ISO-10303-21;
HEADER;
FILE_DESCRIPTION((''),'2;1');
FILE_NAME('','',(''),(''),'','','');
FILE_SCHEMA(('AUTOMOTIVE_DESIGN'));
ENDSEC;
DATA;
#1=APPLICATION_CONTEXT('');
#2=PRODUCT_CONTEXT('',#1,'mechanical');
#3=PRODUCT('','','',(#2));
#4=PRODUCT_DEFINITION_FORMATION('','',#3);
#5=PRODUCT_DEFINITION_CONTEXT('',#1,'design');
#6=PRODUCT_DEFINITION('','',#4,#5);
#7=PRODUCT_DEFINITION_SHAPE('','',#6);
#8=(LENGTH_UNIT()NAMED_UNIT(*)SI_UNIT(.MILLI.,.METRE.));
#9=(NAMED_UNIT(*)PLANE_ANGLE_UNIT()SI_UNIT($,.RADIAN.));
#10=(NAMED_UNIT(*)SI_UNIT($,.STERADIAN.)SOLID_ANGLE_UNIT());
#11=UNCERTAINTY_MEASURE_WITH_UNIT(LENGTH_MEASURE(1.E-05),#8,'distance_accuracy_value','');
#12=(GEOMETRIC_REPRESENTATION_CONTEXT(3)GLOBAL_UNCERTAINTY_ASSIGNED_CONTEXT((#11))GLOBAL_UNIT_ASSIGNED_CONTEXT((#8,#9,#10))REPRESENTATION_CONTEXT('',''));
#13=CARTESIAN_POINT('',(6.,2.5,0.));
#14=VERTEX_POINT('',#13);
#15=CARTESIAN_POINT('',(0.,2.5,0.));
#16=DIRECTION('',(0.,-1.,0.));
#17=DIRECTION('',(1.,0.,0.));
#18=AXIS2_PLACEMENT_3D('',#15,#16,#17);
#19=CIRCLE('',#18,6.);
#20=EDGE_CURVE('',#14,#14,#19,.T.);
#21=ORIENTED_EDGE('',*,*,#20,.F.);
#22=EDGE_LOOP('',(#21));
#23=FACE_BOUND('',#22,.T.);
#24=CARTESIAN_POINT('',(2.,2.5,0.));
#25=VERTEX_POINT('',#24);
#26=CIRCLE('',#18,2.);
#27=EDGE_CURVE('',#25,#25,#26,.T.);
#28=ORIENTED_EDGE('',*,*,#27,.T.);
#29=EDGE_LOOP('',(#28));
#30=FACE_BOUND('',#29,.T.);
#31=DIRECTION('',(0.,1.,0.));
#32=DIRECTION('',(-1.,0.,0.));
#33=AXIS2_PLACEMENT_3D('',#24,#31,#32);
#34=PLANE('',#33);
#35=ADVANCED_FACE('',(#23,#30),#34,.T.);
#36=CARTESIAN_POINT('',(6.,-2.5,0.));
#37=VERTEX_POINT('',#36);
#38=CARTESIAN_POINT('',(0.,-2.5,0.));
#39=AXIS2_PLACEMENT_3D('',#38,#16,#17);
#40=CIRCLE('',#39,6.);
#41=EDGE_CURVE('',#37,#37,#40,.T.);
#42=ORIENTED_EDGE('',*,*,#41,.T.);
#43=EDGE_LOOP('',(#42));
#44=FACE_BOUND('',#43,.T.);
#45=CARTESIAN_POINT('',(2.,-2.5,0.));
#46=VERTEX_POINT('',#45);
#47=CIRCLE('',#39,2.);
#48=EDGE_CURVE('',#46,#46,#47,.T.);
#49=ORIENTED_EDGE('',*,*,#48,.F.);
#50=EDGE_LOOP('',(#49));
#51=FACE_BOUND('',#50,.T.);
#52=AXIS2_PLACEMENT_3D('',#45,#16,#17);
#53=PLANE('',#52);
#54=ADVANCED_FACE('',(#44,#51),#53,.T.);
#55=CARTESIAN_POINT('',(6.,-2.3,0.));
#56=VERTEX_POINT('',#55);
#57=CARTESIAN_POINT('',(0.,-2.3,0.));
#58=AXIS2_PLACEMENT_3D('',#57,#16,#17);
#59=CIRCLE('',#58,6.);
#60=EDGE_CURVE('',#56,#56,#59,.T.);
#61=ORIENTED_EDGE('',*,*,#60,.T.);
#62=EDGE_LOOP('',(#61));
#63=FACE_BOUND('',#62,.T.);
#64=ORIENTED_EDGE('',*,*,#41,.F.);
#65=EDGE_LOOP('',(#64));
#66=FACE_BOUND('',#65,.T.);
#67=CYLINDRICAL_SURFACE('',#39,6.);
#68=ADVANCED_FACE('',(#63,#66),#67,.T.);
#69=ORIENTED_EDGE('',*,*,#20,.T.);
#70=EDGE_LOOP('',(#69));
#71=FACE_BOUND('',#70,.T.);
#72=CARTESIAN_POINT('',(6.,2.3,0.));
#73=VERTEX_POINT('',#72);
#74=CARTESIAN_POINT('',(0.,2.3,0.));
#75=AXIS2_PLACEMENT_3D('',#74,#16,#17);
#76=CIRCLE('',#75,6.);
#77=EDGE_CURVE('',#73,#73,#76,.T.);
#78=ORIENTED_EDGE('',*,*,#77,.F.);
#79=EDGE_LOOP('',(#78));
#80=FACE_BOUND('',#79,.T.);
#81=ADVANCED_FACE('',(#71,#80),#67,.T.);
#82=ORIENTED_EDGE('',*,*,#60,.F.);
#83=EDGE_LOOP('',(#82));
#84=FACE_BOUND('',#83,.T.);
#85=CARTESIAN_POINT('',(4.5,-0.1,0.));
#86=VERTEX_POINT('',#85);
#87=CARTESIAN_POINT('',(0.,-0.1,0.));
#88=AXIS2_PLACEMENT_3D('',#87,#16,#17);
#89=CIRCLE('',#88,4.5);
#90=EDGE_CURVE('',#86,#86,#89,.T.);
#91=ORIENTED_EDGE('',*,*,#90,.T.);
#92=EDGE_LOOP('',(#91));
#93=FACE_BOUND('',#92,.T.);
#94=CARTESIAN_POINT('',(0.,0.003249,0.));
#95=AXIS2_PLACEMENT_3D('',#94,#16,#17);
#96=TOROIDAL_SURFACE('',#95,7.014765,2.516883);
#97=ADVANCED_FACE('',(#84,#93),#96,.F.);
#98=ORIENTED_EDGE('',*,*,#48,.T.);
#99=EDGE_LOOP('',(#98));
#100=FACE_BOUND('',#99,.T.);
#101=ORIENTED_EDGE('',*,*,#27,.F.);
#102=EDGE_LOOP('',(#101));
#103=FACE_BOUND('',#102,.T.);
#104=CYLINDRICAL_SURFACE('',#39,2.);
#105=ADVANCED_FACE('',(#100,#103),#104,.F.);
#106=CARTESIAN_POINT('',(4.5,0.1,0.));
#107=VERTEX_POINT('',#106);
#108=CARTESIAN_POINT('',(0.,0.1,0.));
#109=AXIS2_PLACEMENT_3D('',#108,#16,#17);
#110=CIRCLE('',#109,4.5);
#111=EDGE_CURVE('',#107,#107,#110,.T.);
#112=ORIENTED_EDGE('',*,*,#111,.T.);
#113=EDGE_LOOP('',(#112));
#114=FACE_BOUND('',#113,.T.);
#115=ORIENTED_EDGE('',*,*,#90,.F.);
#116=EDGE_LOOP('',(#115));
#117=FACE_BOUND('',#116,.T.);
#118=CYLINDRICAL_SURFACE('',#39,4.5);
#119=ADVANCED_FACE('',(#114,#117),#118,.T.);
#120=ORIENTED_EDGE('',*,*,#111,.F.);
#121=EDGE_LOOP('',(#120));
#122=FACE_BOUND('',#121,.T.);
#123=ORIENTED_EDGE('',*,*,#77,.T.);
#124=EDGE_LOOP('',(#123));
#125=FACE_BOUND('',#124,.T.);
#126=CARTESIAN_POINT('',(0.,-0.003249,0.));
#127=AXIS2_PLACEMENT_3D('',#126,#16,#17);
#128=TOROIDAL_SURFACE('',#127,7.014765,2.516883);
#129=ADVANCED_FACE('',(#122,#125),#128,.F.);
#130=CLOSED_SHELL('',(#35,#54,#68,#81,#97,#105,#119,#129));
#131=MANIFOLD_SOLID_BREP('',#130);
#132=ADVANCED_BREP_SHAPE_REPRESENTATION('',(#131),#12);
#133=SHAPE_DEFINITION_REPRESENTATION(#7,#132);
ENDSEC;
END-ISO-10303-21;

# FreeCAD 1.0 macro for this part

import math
import FreeCAD as App
import Part
import Sketcher
Q = App.Units.Quantity

doc = App.newDocument("Part")
body = doc.addObject("PartDesign::Body", "Body")

# Sketch on XY plane
sketch1 = body.newObject("Sketcher::SketchObject", "Sketch")
sketch1.AttachmentSupport = (doc.getObject("XY_Plane"), [""])
sketch1.MapMode = "FlatFace"
sketch1.addGeometry(Part.LineSegment(App.Vector(2, 2.5, 0), App.Vector(2, -2.5, 0)), False)
sketch1.addGeometry(Part.LineSegment(App.Vector(2, -2.5, 0), App.Vector(6, -2.5, 0)), False)
sketch1.addGeometry(Part.LineSegment(App.Vector(6, -2.5, 0), App.Vector(6, -2.3, 0)), False)
sketch1.addGeometry(Part.ArcOfCircle(Part.Circle(App.Vector(7.014765, 0.003249, 0), App.Vector(0, 0, 1), 2.516883), math.radians(-177.64893), math.radians(-113.777316)), False)
sketch1.addGeometry(Part.LineSegment(App.Vector(4.5, -0.1, 0), App.Vector(4.5, 0.1, 0)), False)
sketch1.addGeometry(Part.ArcOfCircle(Part.Circle(App.Vector(7.014765, -0.003249, 0), App.Vector(0, 0, 1), 2.516883), math.radians(113.777316), math.radians(177.64893)), False)
sketch1.addGeometry(Part.LineSegment(App.Vector(6, 2.3, 0), App.Vector(6, 2.5, 0)), False)
sketch1.addGeometry(Part.LineSegment(App.Vector(6, 2.5, 0), App.Vector(2, 2.5, 0)), False)
sketch1.addConstraint(Sketcher.Constraint("Coincident", 0, 2, 1, 1))
sketch1.addConstraint(Sketcher.Constraint("Coincident", 1, 2, 2, 1))
sketch1.addConstraint(Sketcher.Constraint("Coincident", 2, 2, 3, 2))
sketch1.addConstraint(Sketcher.Constraint("Coincident", 3, 1, 4, 1))
sketch1.addConstraint(Sketcher.Constraint("Coincident", 4, 2, 5, 2))
sketch1.addConstraint(Sketcher.Constraint("Coincident", 5, 1, 6, 1))
sketch1.addConstraint(Sketcher.Constraint("Coincident", 6, 2, 7, 1))
sketch1.addConstraint(Sketcher.Constraint("Coincident", 7, 2, 0, 1))
sketch1.addConstraint(Sketcher.Constraint("Vertical", 0))
sketch1.addConstraint(Sketcher.Constraint("Horizontal", 1))
sketch1.addConstraint(Sketcher.Constraint("Vertical", 2))
sketch1.addConstraint(Sketcher.Constraint("Vertical", 4))
sketch1.addConstraint(Sketcher.Constraint("Vertical", 6))
sketch1.addConstraint(Sketcher.Constraint("Horizontal", 7))
sketch1.addConstraint(Sketcher.Constraint("Equal", 3, 5))
sketch1.addConstraint(Sketcher.Constraint("Symmetric", 3, 3, 5, 3, -1))
sketch1.addConstraint(Sketcher.Constraint("Symmetric", 1, 2, 6, 2, -1))
sketch1.addConstraint(Sketcher.Constraint("Equal", 2, 4))
sketch1.addConstraint(Sketcher.Constraint("DistanceX", 1, 1, 1, 2, Q("4 mm")))
sketch1.addConstraint(Sketcher.Constraint("DistanceY", 0, 2, 0, 1, Q("5 mm")))
sketch1.addConstraint(Sketcher.Constraint("DistanceY", 2, 1, 2, 2, Q("0.2 mm")))
sketch1.addConstraint(Sketcher.Constraint("DistanceX", -1, 1, 0, 2, Q("2 mm")))
sketch1.addConstraint(Sketcher.Constraint("DistanceX", -1, 1, 3, 1, Q("4.5 mm")))
sketch1.addConstraint(Sketcher.Constraint("Radius", 3, Q("2.516883 mm")))
revolution = body.newObject("PartDesign::Revolution", "Revolution")
revolution.Profile = sketch1
revolution.ReferenceAxis = (sketch1, ["V_Axis"])
revolution.Angle = 360

doc.recompute()
